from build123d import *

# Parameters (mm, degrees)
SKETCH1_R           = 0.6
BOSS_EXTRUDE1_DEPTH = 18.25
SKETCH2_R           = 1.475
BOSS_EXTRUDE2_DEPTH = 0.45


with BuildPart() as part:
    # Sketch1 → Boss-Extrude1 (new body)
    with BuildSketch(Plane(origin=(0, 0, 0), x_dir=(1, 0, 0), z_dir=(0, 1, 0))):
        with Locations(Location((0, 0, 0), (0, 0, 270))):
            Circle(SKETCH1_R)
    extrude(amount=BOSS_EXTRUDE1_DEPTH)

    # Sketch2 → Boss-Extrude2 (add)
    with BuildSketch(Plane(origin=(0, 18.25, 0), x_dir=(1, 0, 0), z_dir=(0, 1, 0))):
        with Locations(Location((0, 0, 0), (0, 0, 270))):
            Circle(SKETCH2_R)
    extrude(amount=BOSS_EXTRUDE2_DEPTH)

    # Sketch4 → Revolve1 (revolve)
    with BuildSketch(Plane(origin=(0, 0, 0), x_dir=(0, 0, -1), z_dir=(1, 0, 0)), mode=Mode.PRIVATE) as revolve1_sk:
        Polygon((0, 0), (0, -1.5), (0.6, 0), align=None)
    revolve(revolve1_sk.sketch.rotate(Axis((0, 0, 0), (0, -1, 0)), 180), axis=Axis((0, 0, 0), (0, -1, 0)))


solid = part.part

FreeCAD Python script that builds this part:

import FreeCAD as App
import Part
import Sketcher
from FreeCAD import Vector

doc = App.newDocument("Part")
body = doc.addObject("PartDesign::Body", "Body")

# Sketch on XZ plane
sketch1 = body.newObject("Sketcher::SketchObject", "Sketch")
sketch1.AttachmentSupport = (doc.getObject("XZ_Plane"), [""])
sketch1.MapMode = "FlatFace"
sketch1.addGeometry(Part.Circle(Vector(0, 0, 0), Vector(0, 0, 1), 0.6), False)
sketch1.addConstraint(Sketcher.Constraint("Coincident", 0, 3, -1, 1))
sketch1.addConstraint(Sketcher.Constraint("Diameter", 0, 1.2))
pad1 = body.newObject("PartDesign::Pad", "Pad")
pad1.Profile = sketch1
pad1.Length = 18.25
pad1.Reversed = True

# Sketch on XZ plane
sketch2 = body.newObject("Sketcher::SketchObject", "Sketch001")
sketch2.AttachmentSupport = (doc.getObject("XZ_Plane"), [""])
sketch2.MapMode = "FlatFace"
sketch2.AttachmentOffset = App.Placement(Vector(0, 0, -18.25), App.Rotation())
sketch2.addGeometry(Part.Circle(Vector(0, 0, 0), Vector(0, 0, 1), 1.475), False)
sketch2.addConstraint(Sketcher.Constraint("Coincident", 0, 3, -1, 1))
sketch2.addConstraint(Sketcher.Constraint("Diameter", 0, 2.95))
pad2 = body.newObject("PartDesign::Pad", "Pad001")
pad2.Profile = sketch2
pad2.Length = 0.45
pad2.Reversed = True

# Sketch on YZ plane
sketch3 = body.newObject("Sketcher::SketchObject", "Sketch002")
sketch3.AttachmentSupport = (doc.getObject("YZ_Plane"), [""])
sketch3.MapMode = "FlatFace"
sketch3.addGeometry(Part.LineSegment(Vector(0, 0, 0), Vector(-1.5, 0, 0)), False)
sketch3.addGeometry(Part.LineSegment(Vector(-1.5, 0, 0), Vector(0, -0.6, 0)), False)
sketch3.addGeometry(Part.LineSegment(Vector(0, -0.6, 0), Vector(0, 0, 0)), False)
sketch3.addConstraint(Sketcher.Constraint("Coincident", 0, 2, 1, 1))
sketch3.addConstraint(Sketcher.Constraint("Coincident", 1, 2, 2, 1))
sketch3.addConstraint(Sketcher.Constraint("Coincident", 2, 2, 0, 1))
sketch3.addConstraint(Sketcher.Constraint("Horizontal", 0))
sketch3.addConstraint(Sketcher.Constraint("Vertical", 2))
sketch3.addConstraint(Sketcher.Constraint("Coincident", 2, 2, -1, 1))
sketch3.addConstraint(Sketcher.Constraint("DistanceX", 0, 2, 0, 1, 1.5))
sketch3.addConstraint(Sketcher.Constraint("DistanceY", 2, 1, 2, 2, 0.6))
revolution = body.newObject("PartDesign::Revolution", "Revolution")
revolution.Profile = sketch3
revolution.ReferenceAxis = (sketch3, ["H_Axis"])
revolution.Angle = 360

doc.recompute()
